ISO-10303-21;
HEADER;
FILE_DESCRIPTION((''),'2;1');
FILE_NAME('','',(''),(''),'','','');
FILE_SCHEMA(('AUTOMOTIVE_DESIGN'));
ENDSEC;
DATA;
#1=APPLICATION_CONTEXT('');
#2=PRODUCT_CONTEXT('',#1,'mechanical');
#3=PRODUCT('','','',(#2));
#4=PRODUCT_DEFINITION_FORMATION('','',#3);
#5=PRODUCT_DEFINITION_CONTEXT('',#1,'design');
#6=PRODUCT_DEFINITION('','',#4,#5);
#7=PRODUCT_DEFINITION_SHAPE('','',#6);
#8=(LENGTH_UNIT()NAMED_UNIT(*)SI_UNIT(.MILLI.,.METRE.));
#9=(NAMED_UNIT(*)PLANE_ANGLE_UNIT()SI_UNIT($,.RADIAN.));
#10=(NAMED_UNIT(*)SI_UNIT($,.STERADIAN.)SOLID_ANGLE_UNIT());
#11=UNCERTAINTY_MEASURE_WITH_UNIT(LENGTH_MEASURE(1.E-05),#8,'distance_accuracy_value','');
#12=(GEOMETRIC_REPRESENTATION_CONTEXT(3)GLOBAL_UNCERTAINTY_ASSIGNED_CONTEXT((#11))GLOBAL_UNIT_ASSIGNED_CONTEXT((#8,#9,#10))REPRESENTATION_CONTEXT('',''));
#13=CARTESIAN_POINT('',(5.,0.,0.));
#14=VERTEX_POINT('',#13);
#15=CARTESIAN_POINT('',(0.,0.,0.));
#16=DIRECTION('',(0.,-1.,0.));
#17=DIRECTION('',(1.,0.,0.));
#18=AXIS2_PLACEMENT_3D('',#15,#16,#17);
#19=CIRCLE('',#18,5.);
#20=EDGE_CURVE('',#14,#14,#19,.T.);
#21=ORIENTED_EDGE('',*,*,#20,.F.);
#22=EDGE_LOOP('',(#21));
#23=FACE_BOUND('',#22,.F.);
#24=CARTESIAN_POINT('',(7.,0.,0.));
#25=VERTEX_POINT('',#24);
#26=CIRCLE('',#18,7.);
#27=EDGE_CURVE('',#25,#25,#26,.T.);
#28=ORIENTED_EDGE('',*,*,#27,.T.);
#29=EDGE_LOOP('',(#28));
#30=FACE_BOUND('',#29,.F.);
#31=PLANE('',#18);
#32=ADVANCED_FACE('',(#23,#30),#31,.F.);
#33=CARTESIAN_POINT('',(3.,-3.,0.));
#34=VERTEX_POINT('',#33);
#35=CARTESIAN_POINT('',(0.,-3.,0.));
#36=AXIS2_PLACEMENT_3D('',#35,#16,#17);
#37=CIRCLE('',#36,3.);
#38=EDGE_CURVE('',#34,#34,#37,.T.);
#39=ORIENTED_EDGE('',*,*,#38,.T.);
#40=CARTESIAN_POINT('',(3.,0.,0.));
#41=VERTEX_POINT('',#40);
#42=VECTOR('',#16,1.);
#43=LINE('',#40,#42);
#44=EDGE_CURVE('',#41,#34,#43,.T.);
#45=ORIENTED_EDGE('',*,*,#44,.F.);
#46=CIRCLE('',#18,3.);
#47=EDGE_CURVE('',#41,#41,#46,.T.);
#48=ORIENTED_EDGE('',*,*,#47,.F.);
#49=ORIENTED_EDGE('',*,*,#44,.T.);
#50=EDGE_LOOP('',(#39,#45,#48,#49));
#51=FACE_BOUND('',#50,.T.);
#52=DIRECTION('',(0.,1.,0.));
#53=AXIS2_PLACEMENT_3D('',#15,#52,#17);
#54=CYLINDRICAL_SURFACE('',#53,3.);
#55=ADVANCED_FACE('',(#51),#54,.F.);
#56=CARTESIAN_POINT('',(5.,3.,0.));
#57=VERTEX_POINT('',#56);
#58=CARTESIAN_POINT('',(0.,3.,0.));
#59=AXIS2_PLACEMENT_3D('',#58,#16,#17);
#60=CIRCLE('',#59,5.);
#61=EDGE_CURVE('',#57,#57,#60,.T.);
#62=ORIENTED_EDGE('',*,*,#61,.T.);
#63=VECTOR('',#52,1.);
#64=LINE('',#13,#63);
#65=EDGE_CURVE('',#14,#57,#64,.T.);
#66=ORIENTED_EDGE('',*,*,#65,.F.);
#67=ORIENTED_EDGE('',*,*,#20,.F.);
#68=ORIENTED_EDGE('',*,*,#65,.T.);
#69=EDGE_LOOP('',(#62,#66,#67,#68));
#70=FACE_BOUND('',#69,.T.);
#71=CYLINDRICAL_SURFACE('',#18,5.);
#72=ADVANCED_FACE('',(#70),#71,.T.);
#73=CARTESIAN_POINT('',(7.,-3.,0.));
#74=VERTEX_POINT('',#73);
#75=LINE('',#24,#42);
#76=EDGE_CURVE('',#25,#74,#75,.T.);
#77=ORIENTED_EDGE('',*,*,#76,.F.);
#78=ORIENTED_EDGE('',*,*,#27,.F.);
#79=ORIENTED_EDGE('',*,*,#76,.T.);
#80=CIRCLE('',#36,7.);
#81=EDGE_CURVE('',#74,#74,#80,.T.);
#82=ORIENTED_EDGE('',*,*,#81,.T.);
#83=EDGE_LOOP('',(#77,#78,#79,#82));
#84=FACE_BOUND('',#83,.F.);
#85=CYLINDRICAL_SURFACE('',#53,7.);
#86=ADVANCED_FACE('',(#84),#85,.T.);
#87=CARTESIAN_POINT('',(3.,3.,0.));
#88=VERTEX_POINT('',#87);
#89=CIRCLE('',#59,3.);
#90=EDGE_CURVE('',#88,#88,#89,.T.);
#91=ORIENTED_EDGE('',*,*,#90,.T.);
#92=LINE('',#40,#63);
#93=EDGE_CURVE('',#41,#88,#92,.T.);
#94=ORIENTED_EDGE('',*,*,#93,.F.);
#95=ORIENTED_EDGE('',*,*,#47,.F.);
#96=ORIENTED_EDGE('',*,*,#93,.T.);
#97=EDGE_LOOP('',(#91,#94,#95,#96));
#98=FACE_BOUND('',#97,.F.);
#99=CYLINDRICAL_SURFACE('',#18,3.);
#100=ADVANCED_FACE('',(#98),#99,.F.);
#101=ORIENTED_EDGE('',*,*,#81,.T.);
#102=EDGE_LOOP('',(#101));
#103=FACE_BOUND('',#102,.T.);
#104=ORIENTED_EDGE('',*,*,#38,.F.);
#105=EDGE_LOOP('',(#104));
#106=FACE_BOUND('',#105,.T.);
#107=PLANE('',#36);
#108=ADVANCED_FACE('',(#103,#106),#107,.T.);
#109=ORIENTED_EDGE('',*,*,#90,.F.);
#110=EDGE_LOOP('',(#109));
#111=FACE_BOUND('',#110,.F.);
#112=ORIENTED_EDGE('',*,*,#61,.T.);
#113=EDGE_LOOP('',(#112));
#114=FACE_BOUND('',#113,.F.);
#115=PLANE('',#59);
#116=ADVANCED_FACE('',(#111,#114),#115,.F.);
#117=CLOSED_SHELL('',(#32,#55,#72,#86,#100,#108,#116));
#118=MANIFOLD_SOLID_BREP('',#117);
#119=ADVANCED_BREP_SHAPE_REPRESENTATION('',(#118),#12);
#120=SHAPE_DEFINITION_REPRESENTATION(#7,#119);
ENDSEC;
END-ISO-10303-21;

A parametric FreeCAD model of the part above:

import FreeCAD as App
import Part
import Sketcher

V = App.Vector

doc = App.newDocument("Part")
body = doc.addObject("PartDesign::Body", "Body")

sketch1 = doc.addObject("Sketcher::SketchObject", "Sketch")
body.addObject(sketch1)
sketch1.AttachmentSupport = (doc.XZ_Plane, [""])
sketch1.MapMode = "FlatFace"
sketch1.addGeometry([
    Part.Circle(V(0, 0, 0), V(0, 0, 1), 7),
    Part.Circle(V(0, 0, 0), V(0, 0, 1), 5),
], False)
sketch1.addConstraint([
    Sketcher.Constraint("Coincident", 0, 3, -1, 1),
    Sketcher.Constraint("Coincident", 1, 3, -1, 1),
    Sketcher.Constraint("Diameter", 0, 14.0),
    Sketcher.Constraint("Diameter", 1, 10.0),
])
pad1 = doc.addObject("PartDesign::Pad", "Pad")
body.addObject(pad1)
pad1.Profile = sketch1
pad1.Length = 3

sketch2 = doc.addObject("Sketcher::SketchObject", "Sketch001")
body.addObject(sketch2)
sketch2.AttachmentSupport = (doc.XZ_Plane, [""])
sketch2.MapMode = "FlatFace"
sketch2.addGeometry([
    Part.Circle(V(0, 0, 0), V(0, 0, 1), 5),
    Part.Circle(V(0, 0, 0), V(0, 0, 1), 3),
], False)
sketch2.addConstraint([
    Sketcher.Constraint("Coincident", 0, 3, -1, 1),
    Sketcher.Constraint("Coincident", 1, 3, -1, 1),
    Sketcher.Constraint("Diameter", 0, 10.0),
    Sketcher.Constraint("Diameter", 1, 6.0),
])
pad2 = doc.addObject("PartDesign::Pad", "Pad001")
body.addObject(pad2)
pad2.Profile = sketch2
pad2.Type = "TwoLengths"
pad2.Length = 3
pad2.Length2 = 3

doc.recompute()
